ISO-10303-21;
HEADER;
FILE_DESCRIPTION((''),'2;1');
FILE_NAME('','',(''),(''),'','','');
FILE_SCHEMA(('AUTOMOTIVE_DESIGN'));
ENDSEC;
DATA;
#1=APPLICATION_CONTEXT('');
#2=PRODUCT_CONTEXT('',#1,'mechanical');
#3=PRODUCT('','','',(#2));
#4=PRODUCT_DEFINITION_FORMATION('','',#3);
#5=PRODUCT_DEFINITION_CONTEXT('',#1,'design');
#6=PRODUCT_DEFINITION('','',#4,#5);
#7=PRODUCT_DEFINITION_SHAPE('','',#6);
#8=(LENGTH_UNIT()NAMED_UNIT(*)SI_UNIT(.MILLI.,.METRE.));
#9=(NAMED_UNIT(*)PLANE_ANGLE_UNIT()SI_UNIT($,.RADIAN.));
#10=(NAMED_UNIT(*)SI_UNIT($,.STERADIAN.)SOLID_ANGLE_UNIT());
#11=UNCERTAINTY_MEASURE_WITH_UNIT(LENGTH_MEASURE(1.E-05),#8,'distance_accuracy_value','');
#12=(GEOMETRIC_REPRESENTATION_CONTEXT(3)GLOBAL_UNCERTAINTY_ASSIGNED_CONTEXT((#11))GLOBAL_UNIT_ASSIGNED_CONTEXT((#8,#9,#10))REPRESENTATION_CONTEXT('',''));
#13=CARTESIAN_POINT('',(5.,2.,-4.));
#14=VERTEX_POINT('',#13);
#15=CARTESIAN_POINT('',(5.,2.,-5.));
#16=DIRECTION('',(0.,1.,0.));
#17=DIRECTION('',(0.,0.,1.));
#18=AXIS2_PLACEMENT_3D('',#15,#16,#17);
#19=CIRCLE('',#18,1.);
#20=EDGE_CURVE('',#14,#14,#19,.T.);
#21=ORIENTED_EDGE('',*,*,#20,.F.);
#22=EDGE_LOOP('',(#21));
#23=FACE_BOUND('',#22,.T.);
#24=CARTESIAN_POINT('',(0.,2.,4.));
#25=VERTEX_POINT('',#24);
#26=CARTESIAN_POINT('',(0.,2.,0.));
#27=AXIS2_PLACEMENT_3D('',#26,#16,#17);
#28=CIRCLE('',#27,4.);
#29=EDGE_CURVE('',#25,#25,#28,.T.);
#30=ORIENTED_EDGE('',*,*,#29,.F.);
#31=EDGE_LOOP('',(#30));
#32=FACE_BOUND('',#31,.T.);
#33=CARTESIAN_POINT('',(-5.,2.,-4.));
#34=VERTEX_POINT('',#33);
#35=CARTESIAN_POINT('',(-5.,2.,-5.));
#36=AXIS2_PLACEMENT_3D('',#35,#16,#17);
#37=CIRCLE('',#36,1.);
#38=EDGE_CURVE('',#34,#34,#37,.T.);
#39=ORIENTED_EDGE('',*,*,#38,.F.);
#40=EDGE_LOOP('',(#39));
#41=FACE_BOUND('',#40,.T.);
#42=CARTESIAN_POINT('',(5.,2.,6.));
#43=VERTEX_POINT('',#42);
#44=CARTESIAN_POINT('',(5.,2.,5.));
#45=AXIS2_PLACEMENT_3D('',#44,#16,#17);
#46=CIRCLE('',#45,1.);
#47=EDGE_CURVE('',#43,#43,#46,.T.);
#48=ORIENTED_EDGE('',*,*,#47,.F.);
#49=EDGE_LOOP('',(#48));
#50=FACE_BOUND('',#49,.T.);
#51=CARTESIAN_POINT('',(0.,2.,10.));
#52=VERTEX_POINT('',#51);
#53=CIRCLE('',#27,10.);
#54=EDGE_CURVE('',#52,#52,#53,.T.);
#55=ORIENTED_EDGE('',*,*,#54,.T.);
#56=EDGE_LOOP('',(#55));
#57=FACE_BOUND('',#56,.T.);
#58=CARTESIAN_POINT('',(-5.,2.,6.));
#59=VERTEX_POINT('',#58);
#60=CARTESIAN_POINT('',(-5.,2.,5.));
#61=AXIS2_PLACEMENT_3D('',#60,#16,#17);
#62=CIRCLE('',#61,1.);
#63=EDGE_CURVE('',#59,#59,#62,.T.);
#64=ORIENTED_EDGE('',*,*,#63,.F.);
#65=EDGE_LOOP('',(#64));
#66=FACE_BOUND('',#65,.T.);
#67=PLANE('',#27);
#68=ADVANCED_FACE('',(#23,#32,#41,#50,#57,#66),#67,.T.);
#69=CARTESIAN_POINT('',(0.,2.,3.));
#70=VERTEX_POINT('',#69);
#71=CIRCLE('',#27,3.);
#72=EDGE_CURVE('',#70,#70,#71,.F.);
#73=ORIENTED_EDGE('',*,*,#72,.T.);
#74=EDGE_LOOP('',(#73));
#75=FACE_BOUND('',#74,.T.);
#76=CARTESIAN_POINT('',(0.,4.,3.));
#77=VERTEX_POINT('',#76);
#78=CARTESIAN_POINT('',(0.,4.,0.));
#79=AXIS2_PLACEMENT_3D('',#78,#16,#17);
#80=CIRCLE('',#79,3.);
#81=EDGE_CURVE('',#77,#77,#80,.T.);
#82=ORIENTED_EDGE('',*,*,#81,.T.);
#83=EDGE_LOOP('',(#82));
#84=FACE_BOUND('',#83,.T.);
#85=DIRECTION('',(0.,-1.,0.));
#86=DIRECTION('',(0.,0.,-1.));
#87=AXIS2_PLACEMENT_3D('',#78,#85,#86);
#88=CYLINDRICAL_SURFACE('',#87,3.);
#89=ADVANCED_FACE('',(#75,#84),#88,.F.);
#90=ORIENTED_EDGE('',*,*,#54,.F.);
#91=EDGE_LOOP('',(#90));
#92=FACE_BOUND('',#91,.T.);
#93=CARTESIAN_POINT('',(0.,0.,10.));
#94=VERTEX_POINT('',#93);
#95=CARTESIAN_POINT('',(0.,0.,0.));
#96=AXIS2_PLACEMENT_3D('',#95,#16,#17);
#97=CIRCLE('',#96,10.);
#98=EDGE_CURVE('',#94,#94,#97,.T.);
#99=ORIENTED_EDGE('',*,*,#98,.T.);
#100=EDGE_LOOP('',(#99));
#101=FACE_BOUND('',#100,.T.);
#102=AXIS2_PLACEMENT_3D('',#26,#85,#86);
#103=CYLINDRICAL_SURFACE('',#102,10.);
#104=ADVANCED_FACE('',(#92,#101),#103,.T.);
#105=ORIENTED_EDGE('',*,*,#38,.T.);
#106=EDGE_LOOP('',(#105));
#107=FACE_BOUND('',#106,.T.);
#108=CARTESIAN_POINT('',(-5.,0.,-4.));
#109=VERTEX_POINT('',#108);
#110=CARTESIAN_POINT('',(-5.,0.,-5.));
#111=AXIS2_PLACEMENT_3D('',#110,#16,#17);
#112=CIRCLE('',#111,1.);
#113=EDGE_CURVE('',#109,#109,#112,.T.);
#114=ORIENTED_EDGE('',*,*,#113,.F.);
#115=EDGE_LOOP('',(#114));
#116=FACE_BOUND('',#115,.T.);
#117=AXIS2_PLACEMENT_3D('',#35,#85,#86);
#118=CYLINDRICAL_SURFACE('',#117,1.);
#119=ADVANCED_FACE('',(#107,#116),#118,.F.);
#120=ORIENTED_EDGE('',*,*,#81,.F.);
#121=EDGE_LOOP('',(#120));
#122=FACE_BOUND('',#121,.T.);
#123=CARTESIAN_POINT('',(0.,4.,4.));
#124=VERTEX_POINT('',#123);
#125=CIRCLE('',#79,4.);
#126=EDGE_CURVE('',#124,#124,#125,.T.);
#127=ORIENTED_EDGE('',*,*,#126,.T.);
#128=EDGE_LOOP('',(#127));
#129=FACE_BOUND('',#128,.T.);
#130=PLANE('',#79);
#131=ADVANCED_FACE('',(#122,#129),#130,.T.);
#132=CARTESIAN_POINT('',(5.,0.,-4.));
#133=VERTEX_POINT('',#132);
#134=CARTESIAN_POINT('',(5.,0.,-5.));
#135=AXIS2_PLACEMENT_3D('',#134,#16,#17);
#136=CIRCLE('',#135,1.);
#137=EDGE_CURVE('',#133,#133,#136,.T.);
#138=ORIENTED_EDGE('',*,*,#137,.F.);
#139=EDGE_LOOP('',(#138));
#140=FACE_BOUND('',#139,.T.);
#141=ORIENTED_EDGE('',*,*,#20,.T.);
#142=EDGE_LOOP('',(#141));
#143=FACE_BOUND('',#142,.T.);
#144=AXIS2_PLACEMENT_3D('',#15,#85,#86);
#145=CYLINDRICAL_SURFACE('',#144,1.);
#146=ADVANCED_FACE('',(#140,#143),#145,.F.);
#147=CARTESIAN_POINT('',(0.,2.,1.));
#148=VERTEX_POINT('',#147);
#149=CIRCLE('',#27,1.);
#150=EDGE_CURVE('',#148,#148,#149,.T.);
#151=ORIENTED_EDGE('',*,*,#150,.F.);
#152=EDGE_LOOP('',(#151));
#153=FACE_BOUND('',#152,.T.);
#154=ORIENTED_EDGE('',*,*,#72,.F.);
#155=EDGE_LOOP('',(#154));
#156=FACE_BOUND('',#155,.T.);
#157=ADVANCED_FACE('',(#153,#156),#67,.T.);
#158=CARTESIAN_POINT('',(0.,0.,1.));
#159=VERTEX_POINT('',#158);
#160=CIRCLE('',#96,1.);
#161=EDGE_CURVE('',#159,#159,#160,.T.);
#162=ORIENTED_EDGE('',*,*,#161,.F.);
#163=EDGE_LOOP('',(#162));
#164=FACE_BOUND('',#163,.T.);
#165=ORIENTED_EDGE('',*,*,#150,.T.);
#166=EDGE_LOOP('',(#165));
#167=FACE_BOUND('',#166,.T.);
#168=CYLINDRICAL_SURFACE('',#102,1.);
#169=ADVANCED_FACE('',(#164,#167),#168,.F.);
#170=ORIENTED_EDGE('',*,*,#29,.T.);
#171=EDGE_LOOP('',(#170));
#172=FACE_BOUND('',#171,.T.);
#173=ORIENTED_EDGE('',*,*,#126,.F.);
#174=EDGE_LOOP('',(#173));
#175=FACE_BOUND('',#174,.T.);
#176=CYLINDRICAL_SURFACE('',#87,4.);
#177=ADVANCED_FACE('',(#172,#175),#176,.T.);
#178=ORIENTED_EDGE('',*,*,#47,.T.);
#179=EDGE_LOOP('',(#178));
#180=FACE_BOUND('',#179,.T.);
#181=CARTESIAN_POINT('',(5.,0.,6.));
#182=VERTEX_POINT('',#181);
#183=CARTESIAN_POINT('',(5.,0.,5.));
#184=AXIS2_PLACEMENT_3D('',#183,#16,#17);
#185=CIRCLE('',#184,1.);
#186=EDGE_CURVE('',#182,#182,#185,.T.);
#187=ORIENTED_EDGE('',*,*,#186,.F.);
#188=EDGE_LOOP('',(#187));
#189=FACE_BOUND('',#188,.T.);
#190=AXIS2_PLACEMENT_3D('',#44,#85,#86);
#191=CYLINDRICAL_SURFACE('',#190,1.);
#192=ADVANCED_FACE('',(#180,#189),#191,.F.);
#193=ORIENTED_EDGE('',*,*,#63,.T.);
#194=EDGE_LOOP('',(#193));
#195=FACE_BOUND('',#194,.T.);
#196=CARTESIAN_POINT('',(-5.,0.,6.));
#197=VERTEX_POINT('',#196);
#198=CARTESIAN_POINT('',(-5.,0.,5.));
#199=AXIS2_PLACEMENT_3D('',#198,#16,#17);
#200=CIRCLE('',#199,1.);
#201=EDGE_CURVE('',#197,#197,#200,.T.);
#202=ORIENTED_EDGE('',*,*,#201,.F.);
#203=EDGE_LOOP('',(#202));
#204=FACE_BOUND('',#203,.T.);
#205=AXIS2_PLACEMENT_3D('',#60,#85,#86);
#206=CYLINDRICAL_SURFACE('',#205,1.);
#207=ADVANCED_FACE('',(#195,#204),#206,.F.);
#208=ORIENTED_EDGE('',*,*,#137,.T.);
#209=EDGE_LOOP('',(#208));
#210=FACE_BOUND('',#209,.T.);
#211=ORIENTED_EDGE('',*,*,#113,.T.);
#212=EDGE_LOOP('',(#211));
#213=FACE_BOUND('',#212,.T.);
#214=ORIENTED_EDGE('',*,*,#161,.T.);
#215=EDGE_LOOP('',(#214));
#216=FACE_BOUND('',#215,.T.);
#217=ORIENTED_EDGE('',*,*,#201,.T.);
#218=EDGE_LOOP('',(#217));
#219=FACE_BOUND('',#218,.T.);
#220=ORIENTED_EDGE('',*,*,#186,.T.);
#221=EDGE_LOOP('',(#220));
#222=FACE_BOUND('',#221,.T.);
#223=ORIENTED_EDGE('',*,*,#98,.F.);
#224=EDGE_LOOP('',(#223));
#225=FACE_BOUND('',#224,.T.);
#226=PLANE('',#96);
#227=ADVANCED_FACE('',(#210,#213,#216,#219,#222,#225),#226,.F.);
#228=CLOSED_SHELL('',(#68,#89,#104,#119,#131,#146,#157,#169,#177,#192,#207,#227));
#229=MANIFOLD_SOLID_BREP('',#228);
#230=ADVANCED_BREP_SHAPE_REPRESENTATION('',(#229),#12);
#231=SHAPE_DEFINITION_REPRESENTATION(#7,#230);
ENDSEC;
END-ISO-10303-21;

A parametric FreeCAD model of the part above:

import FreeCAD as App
import Part
import Sketcher

V = App.Vector

doc = App.newDocument("Part")
body = doc.addObject("PartDesign::Body", "Body")

# Sketch on XZ plane
sketch1 = body.newObject("Sketcher::SketchObject", "Sketch")
sketch1.AttachmentSupport = (doc.getObject("XZ_Plane"), [""])
sketch1.MapMode = "FlatFace"
sketch1.addGeometry(Part.Circle(V(0, 0, 0), V(0, 0, 1), 10), False)
sketch1.addGeometry(Part.Circle(V(-5, -5, 0), V(0, 0, 1), 1), False)
sketch1.addGeometry(Part.Circle(V(-5, 5, 0), V(0, 0, 1), 1), False)
sketch1.addGeometry(Part.Circle(V(5, -5, 0), V(0, 0, 1), 1), False)
sketch1.addGeometry(Part.Circle(V(5, 5, 0), V(0, 0, 1), 1), False)
sketch1.addGeometry(Part.Circle(V(0, 0, 0), V(0, 0, 1), 1), False)
sketch1.addConstraint(Sketcher.Constraint("Coincident", 0, 3, -1, 1))
sketch1.addConstraint(Sketcher.Constraint("Coincident", 5, 3, -1, 1))
sketch1.addConstraint(Sketcher.Constraint("Equal", 1, 2))
sketch1.addConstraint(Sketcher.Constraint("Equal", 2, 3))
sketch1.addConstraint(Sketcher.Constraint("Equal", 3, 4))
sketch1.addConstraint(Sketcher.Constraint("Equal", 4, 5))
sketch1.addConstraint(Sketcher.Constraint("Symmetric", 2, 3, 3, 3, -1, 1))
sketch1.addConstraint(Sketcher.Constraint("Symmetric", 1, 3, 4, 3, -1, 1))
sketch1.addConstraint(Sketcher.Constraint("Symmetric", 1, 3, 3, 3, -2))
sketch1.addConstraint(Sketcher.Constraint("Diameter", 0, 20.0))
sketch1.addConstraint(Sketcher.Constraint("Diameter", 1, 2.0))
sketch1.addConstraint(Sketcher.Constraint("DistanceX", 1, 3, -1, 1, 5.0))
sketch1.addConstraint(Sketcher.Constraint("DistanceY", 1, 3, -1, 1, 5.0))
pad1 = body.newObject("PartDesign::Pad", "Pad")
pad1.Profile = sketch1
pad1.Length = 2
pad1.Reversed = True

# Sketch on XZ plane
sketch2 = body.newObject("Sketcher::SketchObject", "Sketch001")
sketch2.AttachmentSupport = (doc.getObject("XZ_Plane"), [""])
sketch2.MapMode = "FlatFace"
sketch2.AttachmentOffset = App.Placement(V(0, 0, -2), App.Rotation())
sketch2.addGeometry(Part.Circle(V(0, 0, 0), V(0, 0, 1), 4), False)
sketch2.addGeometry(Part.Circle(V(0, 0, 0), V(0, 0, 1), 3), False)
sketch2.addConstraint(Sketcher.Constraint("Coincident", 0, 3, -1, 1))
sketch2.addConstraint(Sketcher.Constraint("Coincident", 1, 3, -1, 1))
sketch2.addConstraint(Sketcher.Constraint("Diameter", 0, 8.0))
sketch2.addConstraint(Sketcher.Constraint("Diameter", 1, 6.0))
pad2 = body.newObject("PartDesign::Pad", "Pad001")
pad2.Profile = sketch2
pad2.Length = 2
pad2.Reversed = True

doc.recompute()
